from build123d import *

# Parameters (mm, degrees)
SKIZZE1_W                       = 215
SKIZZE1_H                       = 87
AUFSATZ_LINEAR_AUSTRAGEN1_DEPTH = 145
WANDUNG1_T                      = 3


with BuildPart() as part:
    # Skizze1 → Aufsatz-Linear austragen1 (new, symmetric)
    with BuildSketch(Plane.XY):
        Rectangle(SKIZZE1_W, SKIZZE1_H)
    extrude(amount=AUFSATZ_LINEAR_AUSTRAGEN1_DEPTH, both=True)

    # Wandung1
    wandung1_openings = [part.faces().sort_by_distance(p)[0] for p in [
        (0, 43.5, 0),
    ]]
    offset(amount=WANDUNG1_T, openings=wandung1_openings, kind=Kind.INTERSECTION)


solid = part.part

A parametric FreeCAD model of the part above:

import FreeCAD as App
import Part
import Sketcher


def faces_at(feature, points):
    """Names of the faces that lie closest to the given points."""
    faces = feature.Shape.Faces
    near = lambda p: min(range(len(faces)), key=lambda i: faces[i].distToShape(Part.Vertex(*p))[0])
    return sorted({f"Face{near(p) + 1}" for p in points})

doc = App.newDocument("Part")
body = doc.addObject("PartDesign::Body", "Body")

# Sketch on XY plane
sketch1 = doc.addObject("Sketcher::SketchObject", "Sketch")
body.addObject(sketch1)
sketch1.AttachmentSupport = (doc.XY_Plane, [""])
sketch1.MapMode = "FlatFace"
sketch1.addGeometry([
    Part.LineSegment(App.Vector(-108, 44, 0), App.Vector(-108, -44, 0)),
    Part.LineSegment(App.Vector(-108, -44, 0), App.Vector(108, -44, 0)),
    Part.LineSegment(App.Vector(108, -44, 0), App.Vector(108, 44, 0)),
    Part.LineSegment(App.Vector(108, 44, 0), App.Vector(-108, 44, 0)),
], False)
sketch1.addConstraint([
    Sketcher.Constraint("Coincident", 0, 2, 1, 1),
    Sketcher.Constraint("Coincident", 1, 2, 2, 1),
    Sketcher.Constraint("Coincident", 2, 2, 3, 1),
    Sketcher.Constraint("Coincident", 3, 2, 0, 1),
    Sketcher.Constraint("Vertical", 0),
    Sketcher.Constraint("Horizontal", 1),
    Sketcher.Constraint("Vertical", 2),
    Sketcher.Constraint("Horizontal", 3),
    Sketcher.Constraint("Symmetric", 0, 2, 2, 2, -1, 1),
    Sketcher.Constraint("DistanceX", 1, 1, 1, 2, 215.0),
    Sketcher.Constraint("DistanceY", 0, 2, 0, 1, 87.0),
])
pad1 = doc.addObject("PartDesign::Pad", "Pad")
body.addObject(pad1)
pad1.Profile = sketch1
pad1.Length = 290
pad1.Midplane = True
doc.recompute()

thickness = doc.addObject("PartDesign::Thickness", "Thickness")
body.addObject(thickness)
thickness.Base = (pad1, faces_at(pad1, [(0, 43.5, 0)]))
thickness.Value = 3
thickness.Reversed = False
thickness.Join = "Intersection"

doc.recompute()
